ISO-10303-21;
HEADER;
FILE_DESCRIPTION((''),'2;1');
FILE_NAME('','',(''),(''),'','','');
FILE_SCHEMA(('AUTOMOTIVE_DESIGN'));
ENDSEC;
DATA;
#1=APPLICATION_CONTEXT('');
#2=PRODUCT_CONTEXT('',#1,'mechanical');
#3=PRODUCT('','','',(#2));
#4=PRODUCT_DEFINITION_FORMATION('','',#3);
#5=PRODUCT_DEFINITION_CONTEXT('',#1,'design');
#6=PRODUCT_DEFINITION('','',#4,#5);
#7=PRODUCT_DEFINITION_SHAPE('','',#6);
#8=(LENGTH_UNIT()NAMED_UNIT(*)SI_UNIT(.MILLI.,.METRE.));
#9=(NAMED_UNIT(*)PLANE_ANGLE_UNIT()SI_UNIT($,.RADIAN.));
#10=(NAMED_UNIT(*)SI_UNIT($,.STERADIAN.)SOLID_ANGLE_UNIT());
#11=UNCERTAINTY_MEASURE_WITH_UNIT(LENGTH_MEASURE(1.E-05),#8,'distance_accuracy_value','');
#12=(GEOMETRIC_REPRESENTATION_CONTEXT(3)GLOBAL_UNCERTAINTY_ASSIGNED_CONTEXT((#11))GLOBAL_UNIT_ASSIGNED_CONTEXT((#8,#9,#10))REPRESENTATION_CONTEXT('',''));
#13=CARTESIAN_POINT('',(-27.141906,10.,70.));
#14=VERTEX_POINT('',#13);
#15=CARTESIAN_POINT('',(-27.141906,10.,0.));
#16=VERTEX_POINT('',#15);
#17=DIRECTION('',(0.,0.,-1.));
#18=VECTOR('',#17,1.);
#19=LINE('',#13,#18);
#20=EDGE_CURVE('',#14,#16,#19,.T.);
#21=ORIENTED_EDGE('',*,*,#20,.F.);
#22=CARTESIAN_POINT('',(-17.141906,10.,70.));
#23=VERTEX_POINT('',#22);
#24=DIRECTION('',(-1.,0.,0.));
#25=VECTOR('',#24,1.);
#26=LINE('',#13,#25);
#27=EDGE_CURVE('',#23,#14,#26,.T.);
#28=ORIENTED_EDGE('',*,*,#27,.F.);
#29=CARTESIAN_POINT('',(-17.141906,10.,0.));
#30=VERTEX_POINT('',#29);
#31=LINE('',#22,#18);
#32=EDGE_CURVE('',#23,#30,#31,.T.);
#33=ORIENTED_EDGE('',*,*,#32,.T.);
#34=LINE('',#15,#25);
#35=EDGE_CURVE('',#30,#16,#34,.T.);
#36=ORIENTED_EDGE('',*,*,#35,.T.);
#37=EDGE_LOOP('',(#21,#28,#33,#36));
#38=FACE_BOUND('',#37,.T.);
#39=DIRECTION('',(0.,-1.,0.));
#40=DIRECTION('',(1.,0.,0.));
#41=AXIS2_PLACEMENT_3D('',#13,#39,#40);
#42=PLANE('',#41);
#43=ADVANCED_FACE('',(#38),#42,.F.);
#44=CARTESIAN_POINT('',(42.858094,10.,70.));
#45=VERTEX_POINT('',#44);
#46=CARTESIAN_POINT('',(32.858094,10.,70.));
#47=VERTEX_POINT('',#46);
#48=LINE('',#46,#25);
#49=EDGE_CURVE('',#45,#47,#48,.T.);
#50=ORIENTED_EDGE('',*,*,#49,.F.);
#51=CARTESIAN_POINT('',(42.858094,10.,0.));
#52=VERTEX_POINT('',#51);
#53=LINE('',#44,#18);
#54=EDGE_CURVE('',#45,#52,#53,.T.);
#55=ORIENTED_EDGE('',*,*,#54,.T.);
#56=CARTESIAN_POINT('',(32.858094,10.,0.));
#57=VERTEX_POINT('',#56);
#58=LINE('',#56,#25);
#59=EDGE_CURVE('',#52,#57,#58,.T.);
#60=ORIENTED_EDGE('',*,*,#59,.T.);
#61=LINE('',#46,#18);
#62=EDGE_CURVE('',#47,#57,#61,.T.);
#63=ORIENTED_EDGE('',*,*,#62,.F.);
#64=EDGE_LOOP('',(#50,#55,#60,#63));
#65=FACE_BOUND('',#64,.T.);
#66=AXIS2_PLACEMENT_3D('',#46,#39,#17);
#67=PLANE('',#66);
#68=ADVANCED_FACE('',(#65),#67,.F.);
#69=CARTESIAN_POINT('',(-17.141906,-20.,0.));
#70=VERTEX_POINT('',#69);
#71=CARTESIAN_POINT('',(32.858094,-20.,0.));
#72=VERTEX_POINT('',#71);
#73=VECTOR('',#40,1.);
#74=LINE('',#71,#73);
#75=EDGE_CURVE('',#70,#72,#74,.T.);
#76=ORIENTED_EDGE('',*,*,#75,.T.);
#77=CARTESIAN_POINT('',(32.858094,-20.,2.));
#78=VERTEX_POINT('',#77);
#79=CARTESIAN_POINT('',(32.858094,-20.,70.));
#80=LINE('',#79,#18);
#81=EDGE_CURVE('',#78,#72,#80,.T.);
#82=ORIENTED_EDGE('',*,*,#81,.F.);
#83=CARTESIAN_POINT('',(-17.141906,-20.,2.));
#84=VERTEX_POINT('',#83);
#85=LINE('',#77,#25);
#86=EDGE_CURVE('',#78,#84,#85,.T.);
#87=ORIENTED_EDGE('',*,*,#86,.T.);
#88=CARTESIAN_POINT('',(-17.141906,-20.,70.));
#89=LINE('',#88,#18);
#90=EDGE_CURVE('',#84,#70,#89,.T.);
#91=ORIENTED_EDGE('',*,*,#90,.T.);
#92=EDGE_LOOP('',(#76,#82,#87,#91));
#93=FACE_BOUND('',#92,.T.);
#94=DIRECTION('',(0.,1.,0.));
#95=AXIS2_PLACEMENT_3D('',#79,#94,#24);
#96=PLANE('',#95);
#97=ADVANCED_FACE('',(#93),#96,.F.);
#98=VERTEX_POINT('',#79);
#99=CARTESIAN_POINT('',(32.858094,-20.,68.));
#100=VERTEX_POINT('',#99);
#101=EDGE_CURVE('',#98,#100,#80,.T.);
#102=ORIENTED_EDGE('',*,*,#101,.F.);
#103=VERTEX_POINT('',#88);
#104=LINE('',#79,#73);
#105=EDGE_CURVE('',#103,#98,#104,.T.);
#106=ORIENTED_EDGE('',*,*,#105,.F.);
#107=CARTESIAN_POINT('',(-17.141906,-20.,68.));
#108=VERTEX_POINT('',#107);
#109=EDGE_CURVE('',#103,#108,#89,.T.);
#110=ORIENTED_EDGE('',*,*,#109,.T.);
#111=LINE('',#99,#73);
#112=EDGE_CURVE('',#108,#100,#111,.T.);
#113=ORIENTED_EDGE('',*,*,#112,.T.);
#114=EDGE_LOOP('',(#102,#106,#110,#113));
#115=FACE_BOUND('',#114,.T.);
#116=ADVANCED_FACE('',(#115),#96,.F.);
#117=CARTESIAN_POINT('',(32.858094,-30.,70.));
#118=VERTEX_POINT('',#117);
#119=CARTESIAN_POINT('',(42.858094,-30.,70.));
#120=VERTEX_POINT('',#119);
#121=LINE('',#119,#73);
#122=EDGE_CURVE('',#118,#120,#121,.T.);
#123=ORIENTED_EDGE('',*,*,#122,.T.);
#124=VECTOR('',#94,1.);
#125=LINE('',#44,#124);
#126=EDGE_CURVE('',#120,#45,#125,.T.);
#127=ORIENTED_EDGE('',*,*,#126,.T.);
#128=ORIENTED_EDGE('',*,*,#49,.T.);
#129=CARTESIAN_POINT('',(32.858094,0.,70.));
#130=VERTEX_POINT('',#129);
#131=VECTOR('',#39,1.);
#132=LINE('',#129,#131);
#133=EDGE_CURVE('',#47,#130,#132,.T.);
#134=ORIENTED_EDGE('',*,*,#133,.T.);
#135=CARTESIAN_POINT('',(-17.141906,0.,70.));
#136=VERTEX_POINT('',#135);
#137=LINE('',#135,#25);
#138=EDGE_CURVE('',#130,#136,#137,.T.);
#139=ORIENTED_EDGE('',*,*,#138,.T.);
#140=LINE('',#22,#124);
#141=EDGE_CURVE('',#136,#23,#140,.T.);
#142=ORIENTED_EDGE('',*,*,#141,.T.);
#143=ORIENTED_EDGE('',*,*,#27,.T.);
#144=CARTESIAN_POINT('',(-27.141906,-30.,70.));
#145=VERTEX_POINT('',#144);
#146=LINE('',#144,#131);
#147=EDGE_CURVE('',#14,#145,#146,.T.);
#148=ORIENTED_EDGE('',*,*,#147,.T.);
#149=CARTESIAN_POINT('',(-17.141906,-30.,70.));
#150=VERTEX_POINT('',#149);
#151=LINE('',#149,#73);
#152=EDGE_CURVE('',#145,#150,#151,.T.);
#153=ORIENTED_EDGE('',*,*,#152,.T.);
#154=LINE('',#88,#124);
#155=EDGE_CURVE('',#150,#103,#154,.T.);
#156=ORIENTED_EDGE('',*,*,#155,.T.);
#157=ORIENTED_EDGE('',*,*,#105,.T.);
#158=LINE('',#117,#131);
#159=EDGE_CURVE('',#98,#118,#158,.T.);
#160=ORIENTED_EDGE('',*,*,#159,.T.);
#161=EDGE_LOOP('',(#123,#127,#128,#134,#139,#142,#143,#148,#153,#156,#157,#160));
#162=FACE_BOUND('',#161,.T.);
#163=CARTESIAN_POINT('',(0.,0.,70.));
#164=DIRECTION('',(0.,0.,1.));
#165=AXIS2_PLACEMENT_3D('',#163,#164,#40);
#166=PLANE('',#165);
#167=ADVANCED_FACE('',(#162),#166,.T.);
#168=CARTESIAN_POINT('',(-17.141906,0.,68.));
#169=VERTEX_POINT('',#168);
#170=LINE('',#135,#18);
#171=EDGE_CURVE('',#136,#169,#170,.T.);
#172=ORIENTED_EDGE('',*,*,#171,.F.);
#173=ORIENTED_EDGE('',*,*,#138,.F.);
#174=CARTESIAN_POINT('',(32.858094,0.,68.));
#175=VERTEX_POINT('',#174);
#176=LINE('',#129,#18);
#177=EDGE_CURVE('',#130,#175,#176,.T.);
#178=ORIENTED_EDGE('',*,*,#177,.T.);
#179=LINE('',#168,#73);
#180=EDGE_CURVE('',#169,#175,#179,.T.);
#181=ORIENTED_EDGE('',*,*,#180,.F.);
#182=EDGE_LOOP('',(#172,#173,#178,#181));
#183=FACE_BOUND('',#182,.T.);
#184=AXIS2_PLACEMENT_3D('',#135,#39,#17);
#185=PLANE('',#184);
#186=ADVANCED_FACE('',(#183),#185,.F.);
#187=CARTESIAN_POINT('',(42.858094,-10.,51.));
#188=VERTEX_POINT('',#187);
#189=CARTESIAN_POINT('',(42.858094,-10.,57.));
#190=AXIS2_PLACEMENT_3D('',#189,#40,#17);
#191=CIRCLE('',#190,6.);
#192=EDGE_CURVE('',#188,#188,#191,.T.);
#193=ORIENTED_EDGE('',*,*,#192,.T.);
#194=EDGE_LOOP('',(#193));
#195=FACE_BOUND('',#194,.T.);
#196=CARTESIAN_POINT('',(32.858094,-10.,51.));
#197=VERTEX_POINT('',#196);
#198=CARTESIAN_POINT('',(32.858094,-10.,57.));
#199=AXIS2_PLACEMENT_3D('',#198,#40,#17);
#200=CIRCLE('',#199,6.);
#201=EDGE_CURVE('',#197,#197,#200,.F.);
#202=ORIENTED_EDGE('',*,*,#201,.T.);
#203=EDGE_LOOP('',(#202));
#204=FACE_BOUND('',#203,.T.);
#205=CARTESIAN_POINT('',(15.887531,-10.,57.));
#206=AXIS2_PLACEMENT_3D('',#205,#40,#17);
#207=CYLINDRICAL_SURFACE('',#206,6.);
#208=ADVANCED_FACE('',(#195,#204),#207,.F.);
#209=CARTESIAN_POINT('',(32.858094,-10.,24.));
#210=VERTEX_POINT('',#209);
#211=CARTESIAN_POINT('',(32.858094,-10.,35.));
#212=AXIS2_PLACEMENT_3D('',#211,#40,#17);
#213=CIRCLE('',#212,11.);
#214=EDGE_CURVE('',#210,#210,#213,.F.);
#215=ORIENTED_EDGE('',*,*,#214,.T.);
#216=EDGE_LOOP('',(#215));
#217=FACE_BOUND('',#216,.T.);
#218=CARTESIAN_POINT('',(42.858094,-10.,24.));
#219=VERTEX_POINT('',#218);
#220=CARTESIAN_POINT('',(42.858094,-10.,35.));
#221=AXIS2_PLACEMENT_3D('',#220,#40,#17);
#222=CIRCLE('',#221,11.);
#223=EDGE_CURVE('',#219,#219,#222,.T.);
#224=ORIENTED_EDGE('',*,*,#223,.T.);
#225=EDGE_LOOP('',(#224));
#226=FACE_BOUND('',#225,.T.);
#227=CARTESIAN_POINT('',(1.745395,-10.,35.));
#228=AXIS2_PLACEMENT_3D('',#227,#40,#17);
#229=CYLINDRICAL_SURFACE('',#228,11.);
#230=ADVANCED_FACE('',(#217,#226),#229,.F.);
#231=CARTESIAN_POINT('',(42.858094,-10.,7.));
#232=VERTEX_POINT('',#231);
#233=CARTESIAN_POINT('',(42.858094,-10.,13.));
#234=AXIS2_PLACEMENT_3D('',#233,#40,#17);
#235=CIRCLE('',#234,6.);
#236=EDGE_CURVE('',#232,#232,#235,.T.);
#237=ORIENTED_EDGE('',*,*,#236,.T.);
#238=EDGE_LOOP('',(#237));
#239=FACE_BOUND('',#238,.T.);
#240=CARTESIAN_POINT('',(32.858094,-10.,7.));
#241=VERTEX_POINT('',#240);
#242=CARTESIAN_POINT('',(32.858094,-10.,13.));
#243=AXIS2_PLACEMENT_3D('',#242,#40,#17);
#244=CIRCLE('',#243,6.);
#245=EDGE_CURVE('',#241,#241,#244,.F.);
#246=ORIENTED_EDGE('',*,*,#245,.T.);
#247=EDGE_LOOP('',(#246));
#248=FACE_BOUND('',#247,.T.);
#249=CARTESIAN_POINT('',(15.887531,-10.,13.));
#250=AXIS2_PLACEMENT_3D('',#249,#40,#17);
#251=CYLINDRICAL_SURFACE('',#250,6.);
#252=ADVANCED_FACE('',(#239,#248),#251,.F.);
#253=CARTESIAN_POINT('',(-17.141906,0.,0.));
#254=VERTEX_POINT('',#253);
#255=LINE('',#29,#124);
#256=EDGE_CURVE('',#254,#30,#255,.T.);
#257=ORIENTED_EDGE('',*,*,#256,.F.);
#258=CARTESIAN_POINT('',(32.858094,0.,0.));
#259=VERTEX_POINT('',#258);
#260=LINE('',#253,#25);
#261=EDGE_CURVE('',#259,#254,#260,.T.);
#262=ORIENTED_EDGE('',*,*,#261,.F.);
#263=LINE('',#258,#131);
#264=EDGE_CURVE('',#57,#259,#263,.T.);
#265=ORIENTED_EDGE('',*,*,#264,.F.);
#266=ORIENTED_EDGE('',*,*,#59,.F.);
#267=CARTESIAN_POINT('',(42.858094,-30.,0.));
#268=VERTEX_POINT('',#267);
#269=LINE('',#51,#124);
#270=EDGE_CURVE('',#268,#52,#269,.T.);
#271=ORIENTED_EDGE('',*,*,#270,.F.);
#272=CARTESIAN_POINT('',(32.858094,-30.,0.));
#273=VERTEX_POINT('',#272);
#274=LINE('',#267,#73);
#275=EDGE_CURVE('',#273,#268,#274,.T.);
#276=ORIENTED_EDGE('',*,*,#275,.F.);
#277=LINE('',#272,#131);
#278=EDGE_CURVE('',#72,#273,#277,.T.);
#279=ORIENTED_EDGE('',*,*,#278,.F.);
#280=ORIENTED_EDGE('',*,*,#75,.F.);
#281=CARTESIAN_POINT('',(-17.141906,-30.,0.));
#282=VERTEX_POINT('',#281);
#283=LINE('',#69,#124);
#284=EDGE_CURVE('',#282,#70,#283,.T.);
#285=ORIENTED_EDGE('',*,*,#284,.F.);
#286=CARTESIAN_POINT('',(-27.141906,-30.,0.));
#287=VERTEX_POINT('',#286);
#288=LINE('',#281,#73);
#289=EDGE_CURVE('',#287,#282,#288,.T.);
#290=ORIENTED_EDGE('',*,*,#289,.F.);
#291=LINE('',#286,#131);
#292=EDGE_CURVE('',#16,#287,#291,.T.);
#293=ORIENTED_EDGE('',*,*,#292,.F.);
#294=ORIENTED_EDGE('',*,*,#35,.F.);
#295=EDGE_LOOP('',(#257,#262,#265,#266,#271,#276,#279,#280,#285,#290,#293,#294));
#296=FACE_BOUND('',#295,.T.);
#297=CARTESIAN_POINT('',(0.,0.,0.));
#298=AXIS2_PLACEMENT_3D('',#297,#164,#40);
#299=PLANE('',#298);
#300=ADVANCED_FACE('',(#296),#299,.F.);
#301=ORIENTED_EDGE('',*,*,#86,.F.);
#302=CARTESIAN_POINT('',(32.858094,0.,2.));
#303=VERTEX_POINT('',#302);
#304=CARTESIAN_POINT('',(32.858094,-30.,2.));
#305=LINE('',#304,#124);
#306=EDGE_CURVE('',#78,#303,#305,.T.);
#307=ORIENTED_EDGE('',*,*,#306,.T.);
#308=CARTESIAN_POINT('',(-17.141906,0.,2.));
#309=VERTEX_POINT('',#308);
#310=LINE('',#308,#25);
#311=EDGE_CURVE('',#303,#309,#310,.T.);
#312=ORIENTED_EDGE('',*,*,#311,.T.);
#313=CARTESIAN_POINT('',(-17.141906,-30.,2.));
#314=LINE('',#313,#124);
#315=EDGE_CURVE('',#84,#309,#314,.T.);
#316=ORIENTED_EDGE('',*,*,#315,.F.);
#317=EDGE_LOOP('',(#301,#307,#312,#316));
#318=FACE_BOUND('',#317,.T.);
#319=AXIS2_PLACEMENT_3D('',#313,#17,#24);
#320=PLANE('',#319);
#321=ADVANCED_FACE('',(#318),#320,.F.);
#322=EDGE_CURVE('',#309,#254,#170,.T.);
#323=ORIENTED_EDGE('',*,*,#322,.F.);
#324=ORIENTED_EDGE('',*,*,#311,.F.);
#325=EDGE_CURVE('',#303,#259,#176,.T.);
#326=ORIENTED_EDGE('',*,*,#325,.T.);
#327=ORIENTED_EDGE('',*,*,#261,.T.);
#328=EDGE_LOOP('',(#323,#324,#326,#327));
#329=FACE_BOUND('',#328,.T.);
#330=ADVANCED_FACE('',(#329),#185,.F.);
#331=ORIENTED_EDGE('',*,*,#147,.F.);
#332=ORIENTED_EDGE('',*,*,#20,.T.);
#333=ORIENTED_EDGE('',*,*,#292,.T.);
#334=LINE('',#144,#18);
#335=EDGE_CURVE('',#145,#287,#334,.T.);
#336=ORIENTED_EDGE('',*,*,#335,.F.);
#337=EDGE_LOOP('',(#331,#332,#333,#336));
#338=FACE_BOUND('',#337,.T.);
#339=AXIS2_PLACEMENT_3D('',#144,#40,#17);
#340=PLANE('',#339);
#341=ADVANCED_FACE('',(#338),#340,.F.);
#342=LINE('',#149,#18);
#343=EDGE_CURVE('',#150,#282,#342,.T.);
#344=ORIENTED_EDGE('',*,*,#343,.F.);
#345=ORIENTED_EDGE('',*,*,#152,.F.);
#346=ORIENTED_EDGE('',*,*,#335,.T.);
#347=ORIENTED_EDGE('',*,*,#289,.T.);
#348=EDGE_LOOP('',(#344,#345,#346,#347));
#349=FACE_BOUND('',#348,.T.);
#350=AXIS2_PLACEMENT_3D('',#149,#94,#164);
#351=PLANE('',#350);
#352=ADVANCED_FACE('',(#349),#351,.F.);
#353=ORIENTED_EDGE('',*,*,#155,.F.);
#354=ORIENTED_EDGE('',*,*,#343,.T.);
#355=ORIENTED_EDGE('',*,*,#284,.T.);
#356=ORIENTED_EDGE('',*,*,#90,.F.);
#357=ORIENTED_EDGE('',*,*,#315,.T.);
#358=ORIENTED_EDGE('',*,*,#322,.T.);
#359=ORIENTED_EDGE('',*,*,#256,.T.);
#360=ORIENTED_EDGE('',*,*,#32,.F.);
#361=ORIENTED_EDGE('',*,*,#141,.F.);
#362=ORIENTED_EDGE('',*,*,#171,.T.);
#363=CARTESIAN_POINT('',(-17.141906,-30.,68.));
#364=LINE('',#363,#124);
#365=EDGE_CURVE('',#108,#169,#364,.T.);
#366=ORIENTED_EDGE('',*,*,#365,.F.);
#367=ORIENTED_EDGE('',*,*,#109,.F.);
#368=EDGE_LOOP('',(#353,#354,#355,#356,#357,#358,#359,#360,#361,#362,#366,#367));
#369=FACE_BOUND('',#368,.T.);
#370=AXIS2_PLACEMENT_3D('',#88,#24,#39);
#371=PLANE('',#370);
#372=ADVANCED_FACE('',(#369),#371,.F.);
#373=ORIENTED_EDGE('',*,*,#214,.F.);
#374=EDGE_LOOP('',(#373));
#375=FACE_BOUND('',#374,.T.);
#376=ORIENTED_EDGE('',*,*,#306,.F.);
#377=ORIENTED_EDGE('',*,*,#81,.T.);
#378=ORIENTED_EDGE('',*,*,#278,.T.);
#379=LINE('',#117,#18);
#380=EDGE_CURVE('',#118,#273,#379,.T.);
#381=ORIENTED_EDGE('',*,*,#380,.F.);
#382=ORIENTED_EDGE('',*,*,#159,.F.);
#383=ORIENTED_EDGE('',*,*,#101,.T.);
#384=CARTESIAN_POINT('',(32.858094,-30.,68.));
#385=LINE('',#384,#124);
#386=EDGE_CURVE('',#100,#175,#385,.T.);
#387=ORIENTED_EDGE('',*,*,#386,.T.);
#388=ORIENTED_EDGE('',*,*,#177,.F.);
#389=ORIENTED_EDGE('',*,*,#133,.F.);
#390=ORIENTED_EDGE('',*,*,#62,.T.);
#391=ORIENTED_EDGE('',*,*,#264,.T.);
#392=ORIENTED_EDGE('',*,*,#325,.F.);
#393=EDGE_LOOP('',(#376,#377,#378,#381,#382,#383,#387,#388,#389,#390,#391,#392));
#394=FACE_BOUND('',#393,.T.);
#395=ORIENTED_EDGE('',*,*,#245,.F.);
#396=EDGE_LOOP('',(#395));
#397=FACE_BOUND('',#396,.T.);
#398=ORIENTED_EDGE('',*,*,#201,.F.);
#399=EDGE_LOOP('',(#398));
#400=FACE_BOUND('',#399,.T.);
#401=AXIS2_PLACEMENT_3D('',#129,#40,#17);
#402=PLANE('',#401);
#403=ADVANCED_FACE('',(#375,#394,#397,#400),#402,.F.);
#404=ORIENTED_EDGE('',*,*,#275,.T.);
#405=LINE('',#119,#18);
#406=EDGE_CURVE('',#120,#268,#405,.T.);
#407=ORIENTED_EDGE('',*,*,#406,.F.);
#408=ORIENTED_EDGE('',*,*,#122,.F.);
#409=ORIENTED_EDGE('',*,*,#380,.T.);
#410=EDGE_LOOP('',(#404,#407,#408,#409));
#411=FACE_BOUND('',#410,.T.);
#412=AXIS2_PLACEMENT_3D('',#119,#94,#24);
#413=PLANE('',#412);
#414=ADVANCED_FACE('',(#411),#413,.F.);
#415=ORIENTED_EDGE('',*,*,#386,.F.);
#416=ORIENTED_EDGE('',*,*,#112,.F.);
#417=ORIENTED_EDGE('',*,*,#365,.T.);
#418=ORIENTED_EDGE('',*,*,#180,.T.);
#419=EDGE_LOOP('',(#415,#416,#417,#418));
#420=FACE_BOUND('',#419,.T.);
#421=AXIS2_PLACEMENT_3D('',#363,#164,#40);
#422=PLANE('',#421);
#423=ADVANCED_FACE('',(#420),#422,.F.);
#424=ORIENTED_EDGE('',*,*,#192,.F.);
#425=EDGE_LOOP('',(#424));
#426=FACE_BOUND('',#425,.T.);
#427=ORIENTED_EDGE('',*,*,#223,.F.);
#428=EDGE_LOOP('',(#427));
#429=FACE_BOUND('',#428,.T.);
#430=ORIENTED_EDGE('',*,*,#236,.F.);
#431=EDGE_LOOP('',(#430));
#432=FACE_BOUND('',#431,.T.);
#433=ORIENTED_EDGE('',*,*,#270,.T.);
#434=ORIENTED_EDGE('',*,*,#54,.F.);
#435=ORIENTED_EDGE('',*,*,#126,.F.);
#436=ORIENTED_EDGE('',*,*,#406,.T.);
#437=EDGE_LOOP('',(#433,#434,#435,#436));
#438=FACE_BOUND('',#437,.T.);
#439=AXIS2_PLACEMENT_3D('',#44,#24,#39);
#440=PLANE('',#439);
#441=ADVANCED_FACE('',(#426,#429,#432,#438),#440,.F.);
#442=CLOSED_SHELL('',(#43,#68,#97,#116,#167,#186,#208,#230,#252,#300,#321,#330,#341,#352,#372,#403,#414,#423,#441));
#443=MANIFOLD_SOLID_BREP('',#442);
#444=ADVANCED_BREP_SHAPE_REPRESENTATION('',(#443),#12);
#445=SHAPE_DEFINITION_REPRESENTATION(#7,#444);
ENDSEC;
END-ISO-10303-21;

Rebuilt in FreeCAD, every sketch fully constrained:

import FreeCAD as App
import Part
import Sketcher
Q = App.Units.Quantity


def add_polygon(sketch, points):
    """Adds a closed chain of lines whose ends are joined by coincident constraints."""
    first, n = sketch.GeometryCount, len(points)
    for a, b in zip(points, points[1:] + points[:1]):
        sketch.addGeometry(Part.LineSegment(App.Vector(*a, 0), App.Vector(*b, 0)), False)
    for i in range(n):
        sketch.addConstraint(Sketcher.Constraint("Coincident", first + i, 2, first + (i + 1) % n, 1))

doc = App.newDocument("Part")
body = doc.addObject("PartDesign::Body", "Body")

sketch1 = doc.addObject("Sketcher::SketchObject", "Sketch")
body.addObject(sketch1)
sketch1.AttachmentSupport = (doc.XY_Plane, [""])
sketch1.MapMode = "FlatFace"
add_polygon(sketch1, [(32.858094, 0), (-17.141906, 0), (-17.141906, 10), (-27.141906, 10), (-27.141906, -30), (-17.141906, -30), (-17.141906, -20), (32.858094, -20), (32.858094, -30), (42.858094, -30), (42.858094, 10), (32.858094, 10)])
sketch1.addConstraint(Sketcher.Constraint("Horizontal", 0))
sketch1.addConstraint(Sketcher.Constraint("Vertical", 1))
sketch1.addConstraint(Sketcher.Constraint("Horizontal", 2))
sketch1.addConstraint(Sketcher.Constraint("Vertical", 3))
sketch1.addConstraint(Sketcher.Constraint("Horizontal", 4))
sketch1.addConstraint(Sketcher.Constraint("Vertical", 5))
sketch1.addConstraint(Sketcher.Constraint("Horizontal", 6))
sketch1.addConstraint(Sketcher.Constraint("Vertical", 7))
sketch1.addConstraint(Sketcher.Constraint("Horizontal", 8))
sketch1.addConstraint(Sketcher.Constraint("Vertical", 9))
sketch1.addConstraint(Sketcher.Constraint("Horizontal", 10))
sketch1.addConstraint(Sketcher.Constraint("Vertical", 11))
sketch1.addConstraint(Sketcher.Constraint("PointOnObject", 0, 2, -1))
sketch1.addConstraint(Sketcher.Constraint("Horizontal", 4, 2, 7, 2))
sketch1.addConstraint(Sketcher.Constraint("Horizontal", 2, 2, 9, 2))
sketch1.addConstraint(Sketcher.Constraint("Vertical", 1, 2, 4, 2))
sketch1.addConstraint(Sketcher.Constraint("Vertical", 7, 2, 10, 2))
sketch1.addConstraint(Sketcher.Constraint("Equal", 4, 8))
sketch1.addConstraint(Sketcher.Constraint("Equal", 10, 1))
sketch1.addConstraint(Sketcher.Constraint("Equal", 1, 5))
sketch1.addConstraint(Sketcher.Constraint("DistanceX", 0, 2, 0, 1, Q("50 mm")))
sketch1.addConstraint(Sketcher.Constraint("DistanceX", 2, 2, 2, 1, Q("10 mm")))
sketch1.addConstraint(Sketcher.Constraint("DistanceY", 3, 2, 3, 1, Q("40 mm")))
sketch1.addConstraint(Sketcher.Constraint("DistanceX", 0, 2, -1, 1, Q("17.141906 mm")))
pad1 = doc.addObject("PartDesign::Pad", "Pad")
body.addObject(pad1)
pad1.Profile = sketch1
pad1.Length = 70

sketch2 = doc.addObject("Sketcher::SketchObject", "Sketch001")
body.addObject(sketch2)
sketch2.AttachmentSupport = (doc.XZ_Plane, [""])
sketch2.MapMode = "FlatFace"
add_polygon(sketch2, [(-17.141906, 2), (-17.141906, 68), (32.858094, 68), (32.858094, 2)])
sketch2.addConstraint(Sketcher.Constraint("Vertical", 0))
sketch2.addConstraint(Sketcher.Constraint("Horizontal", 1))
sketch2.addConstraint(Sketcher.Constraint("Vertical", 2))
sketch2.addConstraint(Sketcher.Constraint("Horizontal", 3))
sketch2.addConstraint(Sketcher.Constraint("DistanceX", 1, 1, 1, 2, Q("50 mm")))
sketch2.addConstraint(Sketcher.Constraint("DistanceY", 0, 1, 0, 2, Q("66 mm")))
sketch2.addConstraint(Sketcher.Constraint("DistanceY", -1, 1, 0, 2, Q("68 mm")))
sketch2.addConstraint(Sketcher.Constraint("DistanceX", 0, 2, -1, 1, Q("17.141906 mm")))
pocket1 = doc.addObject("PartDesign::Pocket", "Pocket")
body.addObject(pocket1)
pocket1.Profile = sketch2
pocket1.Type = "ThroughAll"
pocket1.Reversed = True

sketch3 = doc.addObject("Sketcher::SketchObject", "Sketch002")
body.addObject(sketch3)
sketch3.AttachmentSupport = (doc.YZ_Plane, [""])
sketch3.MapMode = "FlatFace"
sketch3.AttachmentOffset = App.Placement(App.Vector(0, 0, 42.858094), App.Rotation())
sketch3.addGeometry(Part.Circle(App.Vector(-10, 35, 0), App.Vector(0, 0, 1), 11), False)
sketch3.addConstraint(Sketcher.Constraint("Diameter", 0, Q("22 mm")))
sketch3.addConstraint(Sketcher.Constraint("DistanceX", 0, 3, -1, 1, Q("10 mm")))
sketch3.addConstraint(Sketcher.Constraint("DistanceY", -1, 1, 0, 3, Q("35 mm")))
pocket2 = doc.addObject("PartDesign::Pocket", "Pocket001")
body.addObject(pocket2)
pocket2.Profile = sketch3
pocket2.Length = 10

sketch4 = doc.addObject("Sketcher::SketchObject", "Sketch003")
body.addObject(sketch4)
sketch4.AttachmentSupport = (doc.YZ_Plane, [""])
sketch4.MapMode = "FlatFace"
sketch4.AttachmentOffset = App.Placement(App.Vector(0, 0, 42.858094), App.Rotation())
sketch4.addGeometry(Part.Circle(App.Vector(-10, 13, 0), App.Vector(0, 0, 1), 6), False)
sketch4.addGeometry(Part.Circle(App.Vector(-10, 57, 0), App.Vector(0, 0, 1), 6), False)
sketch4.addConstraint(Sketcher.Constraint("Equal", 0, 1))
sketch4.addConstraint(Sketcher.Constraint("Vertical", 0, 3, 1, 3))
sketch4.addConstraint(Sketcher.Constraint("Diameter", 0, Q("12 mm")))
sketch4.addConstraint(Sketcher.Constraint("DistanceX", 0, 3, -1, 1, Q("10 mm")))
sketch4.addConstraint(Sketcher.Constraint("DistanceY", -1, 1, 0, 3, Q("13 mm")))
sketch4.addConstraint(Sketcher.Constraint("DistanceY", -1, 1, 1, 3, Q("57 mm")))
pocket3 = doc.addObject("PartDesign::Pocket", "Pocket002")
body.addObject(pocket3)
pocket3.Profile = sketch4
pocket3.Length = 10

doc.recompute()
